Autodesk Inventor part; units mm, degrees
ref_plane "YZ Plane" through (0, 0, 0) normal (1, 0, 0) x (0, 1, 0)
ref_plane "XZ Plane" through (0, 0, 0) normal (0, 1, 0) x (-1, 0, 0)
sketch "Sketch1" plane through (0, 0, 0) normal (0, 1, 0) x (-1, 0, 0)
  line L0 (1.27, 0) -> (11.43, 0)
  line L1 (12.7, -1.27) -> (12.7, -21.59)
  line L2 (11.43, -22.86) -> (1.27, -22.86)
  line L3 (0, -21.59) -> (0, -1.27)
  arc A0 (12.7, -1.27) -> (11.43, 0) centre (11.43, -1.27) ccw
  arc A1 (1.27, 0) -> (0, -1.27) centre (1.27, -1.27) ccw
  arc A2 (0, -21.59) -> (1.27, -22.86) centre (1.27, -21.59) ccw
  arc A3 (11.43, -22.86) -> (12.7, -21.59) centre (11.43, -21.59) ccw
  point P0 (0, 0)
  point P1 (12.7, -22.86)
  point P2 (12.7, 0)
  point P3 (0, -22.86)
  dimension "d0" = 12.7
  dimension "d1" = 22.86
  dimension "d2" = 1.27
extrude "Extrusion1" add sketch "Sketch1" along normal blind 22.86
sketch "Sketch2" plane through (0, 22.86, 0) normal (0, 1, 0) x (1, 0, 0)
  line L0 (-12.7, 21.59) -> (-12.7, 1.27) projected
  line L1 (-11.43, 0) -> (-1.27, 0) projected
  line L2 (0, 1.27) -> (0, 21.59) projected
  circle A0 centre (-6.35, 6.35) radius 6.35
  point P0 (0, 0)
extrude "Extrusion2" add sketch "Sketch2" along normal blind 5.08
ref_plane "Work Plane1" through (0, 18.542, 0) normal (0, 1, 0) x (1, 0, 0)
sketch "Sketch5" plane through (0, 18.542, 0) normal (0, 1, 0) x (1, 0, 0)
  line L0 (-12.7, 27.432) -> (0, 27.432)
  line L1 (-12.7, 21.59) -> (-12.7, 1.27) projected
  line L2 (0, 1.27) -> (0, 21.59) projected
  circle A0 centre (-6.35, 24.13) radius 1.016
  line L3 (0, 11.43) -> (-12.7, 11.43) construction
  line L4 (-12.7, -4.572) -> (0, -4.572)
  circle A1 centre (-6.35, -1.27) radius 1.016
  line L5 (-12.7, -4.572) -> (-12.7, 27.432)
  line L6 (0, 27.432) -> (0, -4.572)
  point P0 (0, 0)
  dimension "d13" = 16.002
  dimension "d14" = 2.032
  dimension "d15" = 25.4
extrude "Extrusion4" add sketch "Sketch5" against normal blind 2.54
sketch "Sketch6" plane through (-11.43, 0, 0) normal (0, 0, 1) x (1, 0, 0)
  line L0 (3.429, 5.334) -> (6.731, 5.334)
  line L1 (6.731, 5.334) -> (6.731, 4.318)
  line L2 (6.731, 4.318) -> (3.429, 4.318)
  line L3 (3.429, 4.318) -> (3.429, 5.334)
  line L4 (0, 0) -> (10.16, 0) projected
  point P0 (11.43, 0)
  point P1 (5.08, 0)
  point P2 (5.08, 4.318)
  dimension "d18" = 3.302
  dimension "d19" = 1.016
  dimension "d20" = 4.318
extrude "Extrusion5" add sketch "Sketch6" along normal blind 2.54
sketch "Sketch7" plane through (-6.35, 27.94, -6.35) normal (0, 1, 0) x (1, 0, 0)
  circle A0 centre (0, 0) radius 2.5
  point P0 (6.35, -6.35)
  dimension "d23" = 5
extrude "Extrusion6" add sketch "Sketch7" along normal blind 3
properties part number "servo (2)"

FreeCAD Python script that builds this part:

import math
import FreeCAD as App
import Part
import Sketcher

V = App.Vector
Q = App.Units.Quantity

doc = App.newDocument("Part")
body = doc.addObject("PartDesign::Body", "Body")

sketch1 = doc.addObject("Sketcher::SketchObject", "Sketch")
body.addObject(sketch1)
sketch1.AttachmentSupport = (doc.XZ_Plane, [""])
sketch1.MapMode = "FlatFace"
sketch1.addGeometry([
    Part.LineSegment(V(-11.4, 0, 0), V(-1.3, 0, 0)),
    Part.ArcOfCircle(Part.Circle(V(-1.3, -1.3, 0), V(0, 0, 1), 1.3), math.radians(0), math.radians(90)),
    Part.LineSegment(V(0, -1.3, 0), V(0, -21.6, 0)),
    Part.ArcOfCircle(Part.Circle(V(-1.3, -21.6, 0), V(0, 0, 1), 1.3), math.radians(-90), math.radians(0)),
    Part.LineSegment(V(-1.3, -22.9, 0), V(-11.4, -22.9, 0)),
    Part.ArcOfCircle(Part.Circle(V(-11.4, -21.6, 0), V(0, 0, 1), 1.3), math.radians(180), math.radians(270)),
    Part.LineSegment(V(-12.7, -21.6, 0), V(-12.7, -1.3, 0)),
    Part.ArcOfCircle(Part.Circle(V(-11.4, -1.3, 0), V(0, 0, 1), 1.3), math.radians(90), math.radians(180)),
], False)
sketch1.addConstraint([
    Sketcher.Constraint("Tangent", 0, 2, 1, 2),
    Sketcher.Constraint("Tangent", 1, 1, 2, 1),
    Sketcher.Constraint("Tangent", 2, 2, 3, 2),
    Sketcher.Constraint("Tangent", 3, 1, 4, 1),
    Sketcher.Constraint("Tangent", 4, 2, 5, 2),
    Sketcher.Constraint("Tangent", 5, 1, 6, 1),
    Sketcher.Constraint("Tangent", 6, 2, 7, 2),
    Sketcher.Constraint("Tangent", 7, 1, 0, 1),
    Sketcher.Constraint("Horizontal", 0),
    Sketcher.Constraint("Vertical", 2),
    Sketcher.Constraint("Horizontal", 4),
    Sketcher.Constraint("Vertical", 6),
    Sketcher.Constraint("Equal", 1, 3),
    Sketcher.Constraint("Equal", 3, 5),
    Sketcher.Constraint("Equal", 5, 7),
    Sketcher.Constraint("PointOnObject", 0, 2, -1),
    Sketcher.Constraint("PointOnObject", 1, 1, -2),
    Sketcher.Constraint("Radius", 1, Q("0.05 in")),
    Sketcher.Constraint("DistanceY", 3, 1, -1, 1, Q("0.9 in")),
    Sketcher.Constraint("DistanceX", 5, 1, -1, 1, Q("0.5 in")),
])
pad1 = doc.addObject("PartDesign::Pad", "Pad")
body.addObject(pad1)
pad1.Profile = sketch1
pad1.Length = Q("0.9 in")
pad1.Reversed = True

sketch2 = doc.addObject("Sketcher::SketchObject", "Sketch001")
body.addObject(sketch2)
sketch2.AttachmentSupport = (doc.XZ_Plane, [""])
sketch2.MapMode = "FlatFace"
sketch2.AttachmentOffset = App.Placement(V(0, 0, -0.9 * 25.4), App.Rotation())
sketch2.addGeometry(Part.Circle(V(-6, -6, 0), V(0, 0, 1), 6), False)
sketch2.addConstraint([
    Sketcher.Constraint("Diameter", 0, Q("0.5 in")),
    Sketcher.Constraint("DistanceX", 0, 3, -1, 1, Q("0.25 in")),
    Sketcher.Constraint("DistanceY", 0, 3, -1, 1, Q("0.25 in")),
])
pad2 = doc.addObject("PartDesign::Pad", "Pad001")
body.addObject(pad2)
pad2.Profile = sketch2
pad2.Length = Q("0.2 in")
pad2.Reversed = True

sketch3 = doc.addObject("Sketcher::SketchObject", "Sketch002")
body.addObject(sketch3)
sketch3.AttachmentSupport = (doc.XZ_Plane, [""])
sketch3.MapMode = "FlatFace"
sketch3.AttachmentOffset = App.Placement(V(0, 0, -0.73 * 25.4), App.Rotation())
sketch3.addGeometry([
    Part.LineSegment(V(0, -27.4, 0), V(-12.7, -27.4, 0)),
    Part.LineSegment(V(-12.7, -27.4, 0), V(-12.7, 4.6, 0)),
    Part.LineSegment(V(-12.7, 4.6, 0), V(0, 4.6, 0)),
    Part.LineSegment(V(0, 4.6, 0), V(0, -27.4, 0)),
    Part.Circle(V(-6.3, 1.3, 0), V(0, 0, 1), 1),
    Part.Circle(V(-6.3, -24.1, 0), V(0, 0, 1), 1),
], False)
sketch3.addConstraint([
    Sketcher.Constraint("Coincident", 0, 2, 1, 1),
    Sketcher.Constraint("Coincident", 1, 2, 2, 1),
    Sketcher.Constraint("Coincident", 2, 2, 3, 1),
    Sketcher.Constraint("Coincident", 3, 2, 0, 1),
    Sketcher.Constraint("Horizontal", 0),
    Sketcher.Constraint("Vertical", 1),
    Sketcher.Constraint("Horizontal", 2),
    Sketcher.Constraint("Vertical", 3),
    Sketcher.Constraint("Equal", 4, 5),
    Sketcher.Constraint("PointOnObject", 2, 2, -2),
    Sketcher.Constraint("Vertical", 4, 3, 5, 3),
    Sketcher.Constraint("Diameter", 4, Q("0.08 in")),
    Sketcher.Constraint("DistanceY", 5, 3, 4, 3, Q("1 in")),
    Sketcher.Constraint("DistanceX", 0, 2, 0, 1, Q("0.5 in")),
    Sketcher.Constraint("DistanceY", 1, 1, 1, 2, Q("1.26 in")),
    Sketcher.Constraint("DistanceX", 4, 3, -1, 1, Q("0.25 in")),
    Sketcher.Constraint("DistanceY", -1, 1, 4, 3, Q("0.05 in")),
    Sketcher.Constraint("DistanceY", 0, 2, -1, 1, Q("1.08 in")),
])
pad3 = doc.addObject("PartDesign::Pad", "Pad002")
body.addObject(pad3)
pad3.Profile = sketch3
pad3.Length = Q("0.1 in")

sketch4 = doc.addObject("Sketcher::SketchObject", "Sketch003")
body.addObject(sketch4)
sketch4.AttachmentSupport = (doc.XY_Plane, [""])
sketch4.MapMode = "FlatFace"
sketch4.addGeometry([
    Part.LineSegment(V(-4.7, 5.3, 0), V(-8, 5.3, 0)),
    Part.LineSegment(V(-8, 5.3, 0), V(-8, 4.3, 0)),
    Part.LineSegment(V(-8, 4.3, 0), V(-4.7, 4.3, 0)),
    Part.LineSegment(V(-4.7, 4.3, 0), V(-4.7, 5.3, 0)),
], False)
sketch4.addConstraint([
    Sketcher.Constraint("Coincident", 0, 2, 1, 1),
    Sketcher.Constraint("Coincident", 1, 2, 2, 1),
    Sketcher.Constraint("Coincident", 2, 2, 3, 1),
    Sketcher.Constraint("Coincident", 3, 2, 0, 1),
    Sketcher.Constraint("Horizontal", 0),
    Sketcher.Constraint("Vertical", 1),
    Sketcher.Constraint("Horizontal", 2),
    Sketcher.Constraint("Vertical", 3),
    Sketcher.Constraint("DistanceX", 0, 2, 0, 1, Q("0.13 in")),
    Sketcher.Constraint("DistanceY", 1, 2, 1, 1, Q("0.04 in")),
    Sketcher.Constraint("DistanceY", -1, 1, 1, 2, Q("0.17 in")),
    Sketcher.Constraint("DistanceX", 0, 2, -1, 1, Q("0.315 in")),
])
pad4 = doc.addObject("PartDesign::Pad", "Pad003")
body.addObject(pad4)
pad4.Profile = sketch4
pad4.Length = Q("0.1 in")

sketch5 = doc.addObject("Sketcher::SketchObject", "Sketch004")
body.addObject(sketch5)
sketch5.AttachmentSupport = (doc.XZ_Plane, [""])
sketch5.MapMode = "FlatFace"
sketch5.AttachmentOffset = App.Placement(V(0, 0, -1.1 * 25.4), App.Rotation())
sketch5.addGeometry(Part.Circle(V(-6.3, -6.3, 0), V(0, 0, 1), 2.5), False)
sketch5.addConstraint([
    Sketcher.Constraint("Diameter", 0, Q("5 mm")),
    Sketcher.Constraint("DistanceX", 0, 3, -1, 1, Q("0.25 in")),
    Sketcher.Constraint("DistanceY", 0, 3, -1, 1, Q("0.25 in")),
])
pad5 = doc.addObject("PartDesign::Pad", "Pad004")
body.addObject(pad5)
pad5.Profile = sketch5
pad5.Length = Q("0.1181102 in")
pad5.Reversed = True

doc.recompute()
